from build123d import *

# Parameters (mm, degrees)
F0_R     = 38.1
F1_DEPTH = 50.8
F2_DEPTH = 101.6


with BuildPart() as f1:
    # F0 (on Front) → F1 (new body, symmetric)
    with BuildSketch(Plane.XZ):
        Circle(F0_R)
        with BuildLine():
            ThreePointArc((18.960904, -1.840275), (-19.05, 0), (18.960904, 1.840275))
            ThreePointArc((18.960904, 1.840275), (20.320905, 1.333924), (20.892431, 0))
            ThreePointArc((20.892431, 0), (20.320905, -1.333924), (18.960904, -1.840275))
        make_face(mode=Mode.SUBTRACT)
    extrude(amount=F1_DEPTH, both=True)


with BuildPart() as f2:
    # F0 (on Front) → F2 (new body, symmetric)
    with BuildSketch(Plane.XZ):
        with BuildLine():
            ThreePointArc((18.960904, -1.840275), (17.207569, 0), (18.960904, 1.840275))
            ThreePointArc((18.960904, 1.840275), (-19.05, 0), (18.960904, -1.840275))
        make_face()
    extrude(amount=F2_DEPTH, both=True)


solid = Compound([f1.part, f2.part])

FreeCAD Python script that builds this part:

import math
import FreeCAD as App
import Part
import Sketcher
Q = App.Units.Quantity

doc = App.newDocument("Part")
body = doc.addObject("PartDesign::Body", "Body")

# Sketch on XZ plane
sketch1 = doc.addObject("Sketcher::SketchObject", "Sketch")
body.addObject(sketch1)
sketch1.AttachmentSupport = (doc.XZ_Plane, [""])
sketch1.MapMode = "FlatFace"
sketch1.addGeometry([
    Part.Circle(App.Vector(0, 0, 0), App.Vector(0, 0, 1), 38.1),
    Part.ArcOfCircle(Part.Circle(App.Vector(19.1, 0, 0), App.Vector(0, 0, 1), 1.8), math.radians(-93), math.radians(0)),
    Part.ArcOfCircle(Part.Circle(App.Vector(0, 0, 0), App.Vector(0, 0, 1), 19), math.radians(6), math.radians(354)),
    Part.ArcOfCircle(Part.Circle(App.Vector(19.1, 0, 0), App.Vector(0, 0, 1), 1.8), math.radians(0), math.radians(93)),
], False)
sketch1.addConstraint([
    Sketcher.Constraint("Coincident", 1, 1, 2, 2),
    Sketcher.Constraint("Coincident", 2, 1, 3, 2),
    Sketcher.Constraint("Tangent", 3, 1, 1, 2),
    Sketcher.Constraint("Coincident", 0, 3, -1, 1),
    Sketcher.Constraint("Coincident", 2, 3, -1, 1),
    Sketcher.Constraint("Equal", 1, 3),
    Sketcher.Constraint("PointOnObject", 1, 3, -1),
    Sketcher.Constraint("PointOnObject", 3, 1, -1),
    Sketcher.Constraint("Diameter", 0, Q("3 in")),
    Sketcher.Constraint("Radius", 2, Q("0.75 in")),
    Sketcher.Constraint("DistanceX", -1, 1, 1, 3, Q("0.75 in")),
    Sketcher.Constraint("Radius", 1, 1.84243),
])
pad1 = doc.addObject("PartDesign::Pad", "Pad")
body.addObject(pad1)
pad1.Profile = sketch1
pad1.Length = Q("4 in")
pad1.Midplane = True
body2 = doc.addObject("PartDesign::Body", "Body001")

# Sketch on XZ plane
sketch2 = doc.addObject("Sketcher::SketchObject", "Sketch001")
body2.addObject(sketch2)
sketch2.AttachmentSupport = (doc.getObject("XZ_Plane001"), [""])
sketch2.MapMode = "FlatFace"
sketch2.addGeometry([
    Part.ArcOfCircle(Part.Circle(App.Vector(19, 0, 0), App.Vector(0, 0, 1), 1.8), math.radians(93), math.radians(267)),
    Part.ArcOfCircle(Part.Circle(App.Vector(0, 0, 0), App.Vector(0, 0, 1), 19), math.radians(6), math.radians(354)),
], False)
sketch2.addConstraint([
    Sketcher.Constraint("Coincident", 0, 1, 1, 1),
    Sketcher.Constraint("Coincident", 1, 2, 0, 2),
    Sketcher.Constraint("Coincident", 1, 3, -1, 1),
    Sketcher.Constraint("PointOnObject", 0, 3, -1),
    Sketcher.Constraint("Radius", 1, Q("0.75 in")),
    Sketcher.Constraint("DistanceX", -1, 1, 0, 3, Q("0.75 in")),
    Sketcher.Constraint("Radius", 0, 1.84243),
])
pad2 = doc.addObject("PartDesign::Pad", "Pad001")
body2.addObject(pad2)
pad2.Profile = sketch2
pad2.Length = Q("8 in")
pad2.Midplane = True

doc.recompute()
